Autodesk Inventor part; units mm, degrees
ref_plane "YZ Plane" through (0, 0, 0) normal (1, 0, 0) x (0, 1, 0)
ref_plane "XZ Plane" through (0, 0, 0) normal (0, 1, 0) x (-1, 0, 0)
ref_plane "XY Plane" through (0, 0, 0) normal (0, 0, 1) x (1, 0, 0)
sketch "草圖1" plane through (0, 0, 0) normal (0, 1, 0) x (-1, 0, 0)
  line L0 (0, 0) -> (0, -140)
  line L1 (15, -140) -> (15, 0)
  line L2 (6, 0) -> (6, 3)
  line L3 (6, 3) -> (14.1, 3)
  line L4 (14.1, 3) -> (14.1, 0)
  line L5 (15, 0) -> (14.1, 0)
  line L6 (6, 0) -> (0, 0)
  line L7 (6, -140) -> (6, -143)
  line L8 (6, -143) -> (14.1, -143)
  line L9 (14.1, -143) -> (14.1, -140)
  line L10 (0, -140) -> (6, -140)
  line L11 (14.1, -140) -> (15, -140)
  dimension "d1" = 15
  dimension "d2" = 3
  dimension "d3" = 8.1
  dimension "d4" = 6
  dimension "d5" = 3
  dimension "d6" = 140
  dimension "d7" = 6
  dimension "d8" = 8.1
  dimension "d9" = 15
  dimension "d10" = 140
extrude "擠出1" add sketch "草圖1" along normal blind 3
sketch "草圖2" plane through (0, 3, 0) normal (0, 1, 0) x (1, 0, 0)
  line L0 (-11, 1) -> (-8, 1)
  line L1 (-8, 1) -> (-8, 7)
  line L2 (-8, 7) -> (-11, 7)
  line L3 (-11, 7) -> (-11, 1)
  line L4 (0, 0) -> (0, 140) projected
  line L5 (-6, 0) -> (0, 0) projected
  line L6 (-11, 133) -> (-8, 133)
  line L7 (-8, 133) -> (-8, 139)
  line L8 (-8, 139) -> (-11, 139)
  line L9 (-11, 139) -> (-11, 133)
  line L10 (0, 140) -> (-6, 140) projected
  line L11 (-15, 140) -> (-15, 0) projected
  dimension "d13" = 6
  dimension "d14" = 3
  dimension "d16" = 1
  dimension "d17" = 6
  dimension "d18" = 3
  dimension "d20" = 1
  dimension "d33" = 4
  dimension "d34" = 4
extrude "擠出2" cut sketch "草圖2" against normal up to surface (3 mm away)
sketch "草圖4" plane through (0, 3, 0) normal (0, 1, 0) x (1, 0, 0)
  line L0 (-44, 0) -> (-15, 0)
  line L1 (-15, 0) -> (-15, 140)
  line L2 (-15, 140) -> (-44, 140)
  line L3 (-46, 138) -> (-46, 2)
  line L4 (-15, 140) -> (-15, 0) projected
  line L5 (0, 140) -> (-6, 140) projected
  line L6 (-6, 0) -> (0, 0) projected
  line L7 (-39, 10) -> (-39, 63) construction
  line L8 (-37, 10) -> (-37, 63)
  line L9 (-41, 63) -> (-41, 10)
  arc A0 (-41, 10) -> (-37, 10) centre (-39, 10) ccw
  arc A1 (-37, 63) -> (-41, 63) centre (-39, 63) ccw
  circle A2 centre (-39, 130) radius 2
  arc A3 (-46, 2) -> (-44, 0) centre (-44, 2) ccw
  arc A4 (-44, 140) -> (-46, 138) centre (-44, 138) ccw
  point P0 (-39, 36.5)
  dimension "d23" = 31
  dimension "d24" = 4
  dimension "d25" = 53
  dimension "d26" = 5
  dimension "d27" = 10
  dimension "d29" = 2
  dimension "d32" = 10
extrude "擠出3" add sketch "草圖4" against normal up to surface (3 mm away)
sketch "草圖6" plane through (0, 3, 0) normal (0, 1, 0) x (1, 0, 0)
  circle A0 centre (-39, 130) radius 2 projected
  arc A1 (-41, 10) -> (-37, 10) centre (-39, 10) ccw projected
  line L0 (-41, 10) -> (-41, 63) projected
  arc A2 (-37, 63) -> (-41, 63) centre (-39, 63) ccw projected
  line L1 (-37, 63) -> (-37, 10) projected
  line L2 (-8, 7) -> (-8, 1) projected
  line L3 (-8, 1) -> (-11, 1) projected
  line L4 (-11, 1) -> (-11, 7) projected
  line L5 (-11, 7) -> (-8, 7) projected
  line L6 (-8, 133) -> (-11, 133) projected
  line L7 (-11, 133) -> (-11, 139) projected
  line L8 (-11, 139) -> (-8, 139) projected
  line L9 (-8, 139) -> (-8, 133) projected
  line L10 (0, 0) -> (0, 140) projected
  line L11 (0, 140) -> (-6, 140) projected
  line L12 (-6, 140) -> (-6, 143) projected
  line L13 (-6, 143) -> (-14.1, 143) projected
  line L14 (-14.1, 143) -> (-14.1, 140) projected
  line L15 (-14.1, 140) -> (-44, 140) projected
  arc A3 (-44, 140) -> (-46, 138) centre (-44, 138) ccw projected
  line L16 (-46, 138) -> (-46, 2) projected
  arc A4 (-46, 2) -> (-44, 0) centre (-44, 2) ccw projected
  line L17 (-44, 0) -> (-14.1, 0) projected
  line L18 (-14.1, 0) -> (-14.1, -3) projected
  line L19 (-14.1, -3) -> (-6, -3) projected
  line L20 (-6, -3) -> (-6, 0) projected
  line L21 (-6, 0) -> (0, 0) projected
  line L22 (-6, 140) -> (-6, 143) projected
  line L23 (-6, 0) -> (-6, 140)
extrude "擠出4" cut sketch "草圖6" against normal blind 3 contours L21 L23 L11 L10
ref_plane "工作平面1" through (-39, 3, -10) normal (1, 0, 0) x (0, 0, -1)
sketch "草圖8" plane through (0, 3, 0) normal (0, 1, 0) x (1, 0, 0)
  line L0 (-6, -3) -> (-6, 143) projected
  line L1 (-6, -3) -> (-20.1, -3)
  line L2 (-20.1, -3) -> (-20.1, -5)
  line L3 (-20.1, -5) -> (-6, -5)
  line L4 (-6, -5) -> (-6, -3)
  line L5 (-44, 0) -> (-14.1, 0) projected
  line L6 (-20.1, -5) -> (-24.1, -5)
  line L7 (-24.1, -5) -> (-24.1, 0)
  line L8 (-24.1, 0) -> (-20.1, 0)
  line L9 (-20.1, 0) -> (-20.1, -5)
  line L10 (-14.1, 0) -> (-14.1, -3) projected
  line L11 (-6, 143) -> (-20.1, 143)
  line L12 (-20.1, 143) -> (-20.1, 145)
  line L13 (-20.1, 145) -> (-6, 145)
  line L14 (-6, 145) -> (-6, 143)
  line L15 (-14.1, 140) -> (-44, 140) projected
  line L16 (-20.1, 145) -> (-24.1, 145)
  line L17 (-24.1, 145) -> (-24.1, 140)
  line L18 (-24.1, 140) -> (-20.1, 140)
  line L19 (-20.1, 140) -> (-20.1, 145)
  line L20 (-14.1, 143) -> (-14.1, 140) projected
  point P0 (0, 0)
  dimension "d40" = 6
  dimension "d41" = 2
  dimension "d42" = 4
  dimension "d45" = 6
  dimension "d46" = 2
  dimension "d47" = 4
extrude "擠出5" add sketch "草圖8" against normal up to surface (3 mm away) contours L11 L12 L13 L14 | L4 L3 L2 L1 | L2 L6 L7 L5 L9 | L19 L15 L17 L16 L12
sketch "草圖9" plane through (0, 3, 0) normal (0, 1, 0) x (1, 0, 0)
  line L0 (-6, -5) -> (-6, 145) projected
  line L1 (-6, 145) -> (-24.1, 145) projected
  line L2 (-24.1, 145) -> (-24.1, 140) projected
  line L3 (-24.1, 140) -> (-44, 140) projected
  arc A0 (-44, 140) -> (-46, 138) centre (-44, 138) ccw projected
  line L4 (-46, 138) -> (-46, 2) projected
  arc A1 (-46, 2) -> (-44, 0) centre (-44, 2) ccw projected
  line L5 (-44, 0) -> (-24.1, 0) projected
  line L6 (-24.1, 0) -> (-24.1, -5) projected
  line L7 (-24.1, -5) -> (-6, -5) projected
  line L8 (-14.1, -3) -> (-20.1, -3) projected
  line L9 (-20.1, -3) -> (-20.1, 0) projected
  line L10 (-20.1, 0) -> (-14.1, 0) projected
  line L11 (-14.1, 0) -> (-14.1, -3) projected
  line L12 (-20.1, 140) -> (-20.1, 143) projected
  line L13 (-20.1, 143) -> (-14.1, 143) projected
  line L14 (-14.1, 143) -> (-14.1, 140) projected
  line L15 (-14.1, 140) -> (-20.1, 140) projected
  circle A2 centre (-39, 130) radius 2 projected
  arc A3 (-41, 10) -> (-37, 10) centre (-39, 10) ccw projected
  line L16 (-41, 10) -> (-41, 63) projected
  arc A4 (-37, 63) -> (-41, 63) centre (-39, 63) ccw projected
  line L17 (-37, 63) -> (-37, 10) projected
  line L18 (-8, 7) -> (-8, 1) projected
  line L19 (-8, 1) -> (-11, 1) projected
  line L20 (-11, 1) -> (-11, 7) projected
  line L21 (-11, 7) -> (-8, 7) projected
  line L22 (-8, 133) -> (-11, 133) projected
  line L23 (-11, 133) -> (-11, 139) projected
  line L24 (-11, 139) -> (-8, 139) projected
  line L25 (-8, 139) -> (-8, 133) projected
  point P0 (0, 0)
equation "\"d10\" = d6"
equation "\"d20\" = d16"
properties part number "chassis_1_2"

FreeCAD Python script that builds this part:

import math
import FreeCAD as App
import Part
import Sketcher
Q = App.Units.Quantity

doc = App.newDocument("Part")
params = doc.addObject("Spreadsheet::Sheet", "Params")
for row, (alias, value) in enumerate([
    ("sketch1_width", "6 mm"),
    ("sketch1_height", "140 mm"),
    ("sketch1_height2", "3 mm"),
    ("sketch1_width2", "8.1 mm"),
    ("pad1_length", "3 mm"),
    ("sketch2_width", "3 mm"),
    ("sketch2_height", "6 mm"),
    ("pocket1_length", "3 mm"),
    ("sketch3_diameter", "4 mm"),
    ("sketch3_height", "53 mm"),
    ("sketch3_height2", "140 mm"),
    ("pad2_length", "3 mm"),
    ("sketch4_width", "6 mm"),
    ("sketch4_height", "140 mm"),
    ("pocket2_length", "3 mm"),
    ("sketch5_width", "4 mm"),
    ("sketch5_height", "2 mm"),
    ("sketch5_height2", "5 mm"),
    ("sketch5_width2", "18.1 mm"),
    ("pad3_length", "3 mm"),
], start=1):
    params.set(f"A{row}", alias)
    params.set(f"B{row}", "=" + value)
    params.setAlias(f"B{row}", alias)

body = doc.addObject("PartDesign::Body", "Body")

sketch1 = doc.addObject("Sketcher::SketchObject", "Sketch")
body.addObject(sketch1)
sketch1.AttachmentSupport = (doc.XZ_Plane, [""])
sketch1.MapMode = "FlatFace"
sketch1.addGeometry(Part.LineSegment(App.Vector(-6, 0, 0), App.Vector(0, 0, 0)), False)
sketch1.addGeometry(Part.LineSegment(App.Vector(0, 0, 0), App.Vector(0, -140, 0)), False)
sketch1.addGeometry(Part.LineSegment(App.Vector(0, -140, 0), App.Vector(-6, -140, 0)), False)
sketch1.addGeometry(Part.LineSegment(App.Vector(-6, -140, 0), App.Vector(-6, -143, 0)), False)
sketch1.addGeometry(Part.LineSegment(App.Vector(-6, -143, 0), App.Vector(-14.1, -143, 0)), False)
sketch1.addGeometry(Part.LineSegment(App.Vector(-14.1, -143, 0), App.Vector(-14.1, -140, 0)), False)
sketch1.addGeometry(Part.LineSegment(App.Vector(-14.1, -140, 0), App.Vector(-15, -140, 0)), False)
sketch1.addGeometry(Part.LineSegment(App.Vector(-15, -140, 0), App.Vector(-15, 0, 0)), False)
sketch1.addGeometry(Part.LineSegment(App.Vector(-15, 0, 0), App.Vector(-14.1, 0, 0)), False)
sketch1.addGeometry(Part.LineSegment(App.Vector(-14.1, 0, 0), App.Vector(-14.1, 3, 0)), False)
sketch1.addGeometry(Part.LineSegment(App.Vector(-14.1, 3, 0), App.Vector(-6, 3, 0)), False)
sketch1.addGeometry(Part.LineSegment(App.Vector(-6, 3, 0), App.Vector(-6, 0, 0)), False)
sketch1.addConstraint(Sketcher.Constraint("Coincident", 0, 2, 1, 1))
sketch1.addConstraint(Sketcher.Constraint("Coincident", 1, 2, 2, 1))
sketch1.addConstraint(Sketcher.Constraint("Coincident", 2, 2, 3, 1))
sketch1.addConstraint(Sketcher.Constraint("Coincident", 3, 2, 4, 1))
sketch1.addConstraint(Sketcher.Constraint("Coincident", 4, 2, 5, 1))
sketch1.addConstraint(Sketcher.Constraint("Coincident", 5, 2, 6, 1))
sketch1.addConstraint(Sketcher.Constraint("Coincident", 6, 2, 7, 1))
sketch1.addConstraint(Sketcher.Constraint("Coincident", 7, 2, 8, 1))
sketch1.addConstraint(Sketcher.Constraint("Coincident", 8, 2, 9, 1))
sketch1.addConstraint(Sketcher.Constraint("Coincident", 9, 2, 10, 1))
sketch1.addConstraint(Sketcher.Constraint("Coincident", 10, 2, 11, 1))
sketch1.addConstraint(Sketcher.Constraint("Coincident", 11, 2, 0, 1))
sketch1.addConstraint(Sketcher.Constraint("Horizontal", 0))
sketch1.addConstraint(Sketcher.Constraint("Vertical", 1))
sketch1.addConstraint(Sketcher.Constraint("Horizontal", 2))
sketch1.addConstraint(Sketcher.Constraint("Vertical", 3))
sketch1.addConstraint(Sketcher.Constraint("Horizontal", 4))
sketch1.addConstraint(Sketcher.Constraint("Vertical", 5))
sketch1.addConstraint(Sketcher.Constraint("Horizontal", 6))
sketch1.addConstraint(Sketcher.Constraint("Vertical", 7))
sketch1.addConstraint(Sketcher.Constraint("Horizontal", 8))
sketch1.addConstraint(Sketcher.Constraint("Vertical", 9))
sketch1.addConstraint(Sketcher.Constraint("Horizontal", 10))
sketch1.addConstraint(Sketcher.Constraint("Vertical", 11))
sketch1.addConstraint(Sketcher.Constraint("Coincident", 0, 2, -1, 1))
sketch1.addConstraint(Sketcher.Constraint("PointOnObject", 7, 2, -1))
sketch1.addConstraint(Sketcher.Constraint("Horizontal", 2, 2, 5, 2))
sketch1.addConstraint(Sketcher.Constraint("Vertical", 5, 2, 8, 2))
sketch1.addConstraint(Sketcher.Constraint("Vertical", 3, 2, 10, 2))
sketch1.addConstraint(Sketcher.Constraint("Equal", 5, 9))
sketch1.addConstraint(Sketcher.Constraint("DistanceX", 0, 1, 0, 2, Q("6 mm")))
sketch1.addConstraint(Sketcher.Constraint("DistanceY", 1, 2, 1, 1, Q("140 mm")))
sketch1.addConstraint(Sketcher.Constraint("DistanceY", 3, 2, 3, 1, Q("3 mm")))
sketch1.addConstraint(Sketcher.Constraint("DistanceX", 4, 2, 4, 1, Q("8.1 mm")))
sketch1.addConstraint(Sketcher.Constraint("DistanceX", 6, 2, -1, 1, Q("15 mm")))
sketch1.setExpression("Constraints[30]", "Params.sketch1_width")
sketch1.setExpression("Constraints[31]", "Params.sketch1_height")
sketch1.setExpression("Constraints[32]", "Params.sketch1_height2")
sketch1.setExpression("Constraints[33]", "Params.sketch1_width2")
pad1 = doc.addObject("PartDesign::Pad", "Pad")
body.addObject(pad1)
pad1.Profile = sketch1
pad1.setExpression("Length", "Params.pad1_length")
pad1.Reversed = True

sketch2 = doc.addObject("Sketcher::SketchObject", "Sketch001")
body.addObject(sketch2)
sketch2.AttachmentSupport = (doc.XZ_Plane, [""])
sketch2.MapMode = "FlatFace"
sketch2.AttachmentOffset = App.Placement(App.Vector(0, 0, -3), App.Rotation())
sketch2.addGeometry(Part.LineSegment(App.Vector(-11, -7, 0), App.Vector(-11, -1, 0)), False)
sketch2.addGeometry(Part.LineSegment(App.Vector(-11, -1, 0), App.Vector(-8, -1, 0)), False)
sketch2.addGeometry(Part.LineSegment(App.Vector(-8, -1, 0), App.Vector(-8, -7, 0)), False)
sketch2.addGeometry(Part.LineSegment(App.Vector(-8, -7, 0), App.Vector(-11, -7, 0)), False)
sketch2.addGeometry(Part.LineSegment(App.Vector(-11, -139, 0), App.Vector(-11, -133, 0)), False)
sketch2.addGeometry(Part.LineSegment(App.Vector(-11, -133, 0), App.Vector(-8, -133, 0)), False)
sketch2.addGeometry(Part.LineSegment(App.Vector(-8, -133, 0), App.Vector(-8, -139, 0)), False)
sketch2.addGeometry(Part.LineSegment(App.Vector(-8, -139, 0), App.Vector(-11, -139, 0)), False)
sketch2.addConstraint(Sketcher.Constraint("Coincident", 0, 2, 1, 1))
sketch2.addConstraint(Sketcher.Constraint("Coincident", 1, 2, 2, 1))
sketch2.addConstraint(Sketcher.Constraint("Coincident", 2, 2, 3, 1))
sketch2.addConstraint(Sketcher.Constraint("Coincident", 3, 2, 0, 1))
sketch2.addConstraint(Sketcher.Constraint("Coincident", 4, 2, 5, 1))
sketch2.addConstraint(Sketcher.Constraint("Coincident", 5, 2, 6, 1))
sketch2.addConstraint(Sketcher.Constraint("Coincident", 6, 2, 7, 1))
sketch2.addConstraint(Sketcher.Constraint("Coincident", 7, 2, 4, 1))
sketch2.addConstraint(Sketcher.Constraint("Vertical", 0))
sketch2.addConstraint(Sketcher.Constraint("Horizontal", 1))
sketch2.addConstraint(Sketcher.Constraint("Vertical", 2))
sketch2.addConstraint(Sketcher.Constraint("Horizontal", 3))
sketch2.addConstraint(Sketcher.Constraint("Vertical", 4))
sketch2.addConstraint(Sketcher.Constraint("Horizontal", 5))
sketch2.addConstraint(Sketcher.Constraint("Vertical", 6))
sketch2.addConstraint(Sketcher.Constraint("Horizontal", 7))
sketch2.addConstraint(Sketcher.Constraint("Vertical", 3, 2, 4, 2))
sketch2.addConstraint(Sketcher.Constraint("Vertical", 2, 2, 5, 2))
sketch2.addConstraint(Sketcher.Constraint("Equal", 2, 4))
sketch2.addConstraint(Sketcher.Constraint("DistanceX", 1, 1, 1, 2, Q("3 mm")))
sketch2.addConstraint(Sketcher.Constraint("DistanceY", 0, 1, 0, 2, Q("6 mm")))
sketch2.addConstraint(Sketcher.Constraint("DistanceY", 0, 2, -1, 1, Q("1 mm")))
sketch2.addConstraint(Sketcher.Constraint("DistanceX", 0, 2, -1, 1, Q("11 mm")))
sketch2.addConstraint(Sketcher.Constraint("DistanceY", 4, 2, -1, 1, Q("133 mm")))
sketch2.setExpression("Constraints[19]", "Params.sketch2_width")
sketch2.setExpression("Constraints[20]", "Params.sketch2_height")
pocket1 = doc.addObject("PartDesign::Pocket", "Pocket")
body.addObject(pocket1)
pocket1.Profile = sketch2
pocket1.setExpression("Length", "Params.pocket1_length")
pocket1.Reversed = True

sketch3 = doc.addObject("Sketcher::SketchObject", "Sketch002")
body.addObject(sketch3)
sketch3.AttachmentSupport = (doc.XZ_Plane, [""])
sketch3.MapMode = "FlatFace"
sketch3.AttachmentOffset = App.Placement(App.Vector(0, 0, -3), App.Rotation())
sketch3.addGeometry(Part.ArcOfCircle(Part.Circle(App.Vector(-44, -2, 0), App.Vector(0, 0, 1), 2), math.radians(90), math.radians(180)), False)
sketch3.addGeometry(Part.LineSegment(App.Vector(-44, 0, 0), App.Vector(-15, 0, 0)), False)
sketch3.addGeometry(Part.LineSegment(App.Vector(-15, 0, 0), App.Vector(-15, -140, 0)), False)
sketch3.addGeometry(Part.LineSegment(App.Vector(-15, -140, 0), App.Vector(-44, -140, 0)), False)
sketch3.addGeometry(Part.ArcOfCircle(Part.Circle(App.Vector(-44, -138, 0), App.Vector(0, 0, 1), 2), math.radians(180), math.radians(270)), False)
sketch3.addGeometry(Part.LineSegment(App.Vector(-46, -138, 0), App.Vector(-46, -2, 0)), False)
sketch3.addGeometry(Part.LineSegment(App.Vector(-37, -63, 0), App.Vector(-37, -10, 0)), False)
sketch3.addGeometry(Part.ArcOfCircle(Part.Circle(App.Vector(-39, -10, 0), App.Vector(0, 0, 1), 2), math.radians(0), math.radians(180)), False)
sketch3.addGeometry(Part.LineSegment(App.Vector(-41, -10, 0), App.Vector(-41, -63, 0)), False)
sketch3.addGeometry(Part.ArcOfCircle(Part.Circle(App.Vector(-39, -63, 0), App.Vector(0, 0, 1), 2), math.radians(180), math.radians(360)), False)
sketch3.addGeometry(Part.Circle(App.Vector(-39, -130, 0), App.Vector(0, 0, 1), 2), False)
sketch3.addConstraint(Sketcher.Constraint("Tangent", 0, 1, 1, 1))
sketch3.addConstraint(Sketcher.Constraint("Coincident", 1, 2, 2, 1))
sketch3.addConstraint(Sketcher.Constraint("Coincident", 2, 2, 3, 1))
sketch3.addConstraint(Sketcher.Constraint("Tangent", 3, 2, 4, 2))
sketch3.addConstraint(Sketcher.Constraint("Tangent", 4, 1, 5, 1))
sketch3.addConstraint(Sketcher.Constraint("Tangent", 5, 2, 0, 2))
sketch3.addConstraint(Sketcher.Constraint("Tangent", 6, 2, 7, 1))
sketch3.addConstraint(Sketcher.Constraint("Tangent", 7, 2, 8, 1))
sketch3.addConstraint(Sketcher.Constraint("Tangent", 8, 2, 9, 1))
sketch3.addConstraint(Sketcher.Constraint("Tangent", 9, 2, 6, 1))
sketch3.addConstraint(Sketcher.Constraint("Horizontal", 1))
sketch3.addConstraint(Sketcher.Constraint("Vertical", 2))
sketch3.addConstraint(Sketcher.Constraint("Horizontal", 3))
sketch3.addConstraint(Sketcher.Constraint("Vertical", 5))
sketch3.addConstraint(Sketcher.Constraint("Vertical", 6))
sketch3.addConstraint(Sketcher.Constraint("Vertical", 8))
sketch3.addConstraint(Sketcher.Constraint("Equal", 0, 4))
sketch3.addConstraint(Sketcher.Constraint("Equal", 4, 7))
sketch3.addConstraint(Sketcher.Constraint("Equal", 9, 10))
sketch3.addConstraint(Sketcher.Constraint("PointOnObject", 0, 1, -1))
sketch3.addConstraint(Sketcher.Constraint("Vertical", 9, 3, 10, 3))
sketch3.addConstraint(Sketcher.Constraint("Diameter", 10, Q("4 mm")))
sketch3.addConstraint(Sketcher.Constraint("DistanceY", 6, 1, 6, 2, Q("53 mm")))
sketch3.addConstraint(Sketcher.Constraint("DistanceY", 7, 3, -1, 1, Q("10 mm")))
sketch3.addConstraint(Sketcher.Constraint("DistanceX", 0, 3, 7, 3, Q("5 mm")))
sketch3.addConstraint(Sketcher.Constraint("DistanceY", 2, 2, 10, 3, Q("10 mm")))
sketch3.addConstraint(Sketcher.Constraint("DistanceX", 4, 1, 2, 2, Q("31 mm")))
sketch3.addConstraint(Sketcher.Constraint("DistanceY", 2, 2, 2, 1, Q("140 mm")))
sketch3.addConstraint(Sketcher.Constraint("DistanceX", 0, 3, -1, 1, Q("44 mm")))
sketch3.setExpression("Constraints[21]", "Params.sketch3_diameter")
sketch3.setExpression("Constraints[22]", "Params.sketch3_height")
sketch3.setExpression("Constraints[27]", "Params.sketch3_height2")
pad2 = doc.addObject("PartDesign::Pad", "Pad001")
body.addObject(pad2)
pad2.Profile = sketch3
pad2.setExpression("Length", "Params.pad2_length")

sketch4 = doc.addObject("Sketcher::SketchObject", "Sketch003")
body.addObject(sketch4)
sketch4.AttachmentSupport = (doc.XZ_Plane, [""])
sketch4.MapMode = "FlatFace"
sketch4.AttachmentOffset = App.Placement(App.Vector(0, 0, -3), App.Rotation())
sketch4.addGeometry(Part.LineSegment(App.Vector(-6, 0, 0), App.Vector(0, 0, 0)), False)
sketch4.addGeometry(Part.LineSegment(App.Vector(0, 0, 0), App.Vector(0, -140, 0)), False)
sketch4.addGeometry(Part.LineSegment(App.Vector(0, -140, 0), App.Vector(-6, -140, 0)), False)
sketch4.addGeometry(Part.LineSegment(App.Vector(-6, -140, 0), App.Vector(-6, 0, 0)), False)
sketch4.addConstraint(Sketcher.Constraint("Coincident", 0, 2, 1, 1))
sketch4.addConstraint(Sketcher.Constraint("Coincident", 1, 2, 2, 1))
sketch4.addConstraint(Sketcher.Constraint("Coincident", 2, 2, 3, 1))
sketch4.addConstraint(Sketcher.Constraint("Coincident", 3, 2, 0, 1))
sketch4.addConstraint(Sketcher.Constraint("Horizontal", 0))
sketch4.addConstraint(Sketcher.Constraint("Vertical", 1))
sketch4.addConstraint(Sketcher.Constraint("Horizontal", 2))
sketch4.addConstraint(Sketcher.Constraint("Vertical", 3))
sketch4.addConstraint(Sketcher.Constraint("Coincident", 0, 2, -1, 1))
sketch4.addConstraint(Sketcher.Constraint("DistanceX", 0, 1, 0, 2, Q("6 mm")))
sketch4.addConstraint(Sketcher.Constraint("DistanceY", 1, 2, 1, 1, Q("140 mm")))
sketch4.setExpression("Constraints[9]", "Params.sketch4_width")
sketch4.setExpression("Constraints[10]", "Params.sketch4_height")
pocket2 = doc.addObject("PartDesign::Pocket", "Pocket001")
body.addObject(pocket2)
pocket2.Profile = sketch4
pocket2.setExpression("Length", "Params.pocket2_length")
pocket2.Reversed = True

sketch5 = doc.addObject("Sketcher::SketchObject", "Sketch004")
body.addObject(sketch5)
sketch5.AttachmentSupport = (doc.XZ_Plane, [""])
sketch5.MapMode = "FlatFace"
sketch5.AttachmentOffset = App.Placement(App.Vector(0, 0, -3), App.Rotation())
sketch5.addGeometry(Part.LineSegment(App.Vector(-6, -143, 0), App.Vector(-6, -145, 0)), False)
sketch5.addGeometry(Part.LineSegment(App.Vector(-6, -145, 0), App.Vector(-24.1, -145, 0)), False)
sketch5.addGeometry(Part.LineSegment(App.Vector(-24.1, -145, 0), App.Vector(-24.1, -140, 0)), False)
sketch5.addGeometry(Part.LineSegment(App.Vector(-24.1, -140, 0), App.Vector(-20.1, -140, 0)), False)
sketch5.addGeometry(Part.LineSegment(App.Vector(-20.1, -140, 0), App.Vector(-20.1, -143, 0)), False)
sketch5.addGeometry(Part.LineSegment(App.Vector(-20.1, -143, 0), App.Vector(-6, -143, 0)), False)
sketch5.addGeometry(Part.LineSegment(App.Vector(-6, 5, 0), App.Vector(-6, 3, 0)), False)
sketch5.addGeometry(Part.LineSegment(App.Vector(-6, 3, 0), App.Vector(-20.1, 3, 0)), False)
sketch5.addGeometry(Part.LineSegment(App.Vector(-20.1, 3, 0), App.Vector(-20.1, 0, 0)), False)
sketch5.addGeometry(Part.LineSegment(App.Vector(-20.1, 0, 0), App.Vector(-24.1, 0, 0)), False)
sketch5.addGeometry(Part.LineSegment(App.Vector(-24.1, 0, 0), App.Vector(-24.1, 5, 0)), False)
sketch5.addGeometry(Part.LineSegment(App.Vector(-24.1, 5, 0), App.Vector(-6, 5, 0)), False)
sketch5.addConstraint(Sketcher.Constraint("Coincident", 0, 2, 1, 1))
sketch5.addConstraint(Sketcher.Constraint("Coincident", 1, 2, 2, 1))
sketch5.addConstraint(Sketcher.Constraint("Coincident", 2, 2, 3, 1))
sketch5.addConstraint(Sketcher.Constraint("Coincident", 3, 2, 4, 1))
sketch5.addConstraint(Sketcher.Constraint("Coincident", 4, 2, 5, 1))
sketch5.addConstraint(Sketcher.Constraint("Coincident", 5, 2, 0, 1))
sketch5.addConstraint(Sketcher.Constraint("Coincident", 6, 2, 7, 1))
sketch5.addConstraint(Sketcher.Constraint("Coincident", 7, 2, 8, 1))
sketch5.addConstraint(Sketcher.Constraint("Coincident", 8, 2, 9, 1))
sketch5.addConstraint(Sketcher.Constraint("Coincident", 9, 2, 10, 1))
sketch5.addConstraint(Sketcher.Constraint("Coincident", 10, 2, 11, 1))
sketch5.addConstraint(Sketcher.Constraint("Coincident", 11, 2, 6, 1))
sketch5.addConstraint(Sketcher.Constraint("Vertical", 0))
sketch5.addConstraint(Sketcher.Constraint("Horizontal", 1))
sketch5.addConstraint(Sketcher.Constraint("Vertical", 2))
sketch5.addConstraint(Sketcher.Constraint("Horizontal", 3))
sketch5.addConstraint(Sketcher.Constraint("Vertical", 4))
sketch5.addConstraint(Sketcher.Constraint("Horizontal", 5))
sketch5.addConstraint(Sketcher.Constraint("Vertical", 6))
sketch5.addConstraint(Sketcher.Constraint("Horizontal", 7))
sketch5.addConstraint(Sketcher.Constraint("Vertical", 8))
sketch5.addConstraint(Sketcher.Constraint("Horizontal", 9))
sketch5.addConstraint(Sketcher.Constraint("Vertical", 10))
sketch5.addConstraint(Sketcher.Constraint("Horizontal", 11))
sketch5.addConstraint(Sketcher.Constraint("PointOnObject", 8, 2, -1))
sketch5.addConstraint(Sketcher.Constraint("Vertical", 5, 2, 6, 2))
sketch5.addConstraint(Sketcher.Constraint("Vertical", 4, 2, 7, 2))
sketch5.addConstraint(Sketcher.Constraint("Vertical", 2, 2, 9, 2))
sketch5.addConstraint(Sketcher.Constraint("Equal", 0, 6))
sketch5.addConstraint(Sketcher.Constraint("Equal", 4, 8))
sketch5.addConstraint(Sketcher.Constraint("DistanceX", 3, 1, 3, 2, Q("4 mm")))
sketch5.addConstraint(Sketcher.Constraint("DistanceY", 0, 2, 0, 1, Q("2 mm")))
sketch5.addConstraint(Sketcher.Constraint("DistanceX", 0, 2, -1, 1, Q("6 mm")))
sketch5.addConstraint(Sketcher.Constraint("DistanceY", 2, 1, 2, 2, Q("5 mm")))
sketch5.addConstraint(Sketcher.Constraint("DistanceX", 1, 2, 1, 1, Q("18.1 mm")))
sketch5.addConstraint(Sketcher.Constraint("DistanceY", 0, 2, -1, 1, Q("145 mm")))
sketch5.setExpression("Constraints[30]", "Params.sketch5_width")
sketch5.setExpression("Constraints[31]", "Params.sketch5_height")
sketch5.setExpression("Constraints[33]", "Params.sketch5_height2")
sketch5.setExpression("Constraints[34]", "Params.sketch5_width2")
pad3 = doc.addObject("PartDesign::Pad", "Pad002")
body.addObject(pad3)
pad3.Profile = sketch5
pad3.setExpression("Length", "Params.pad3_length")

doc.recompute()
